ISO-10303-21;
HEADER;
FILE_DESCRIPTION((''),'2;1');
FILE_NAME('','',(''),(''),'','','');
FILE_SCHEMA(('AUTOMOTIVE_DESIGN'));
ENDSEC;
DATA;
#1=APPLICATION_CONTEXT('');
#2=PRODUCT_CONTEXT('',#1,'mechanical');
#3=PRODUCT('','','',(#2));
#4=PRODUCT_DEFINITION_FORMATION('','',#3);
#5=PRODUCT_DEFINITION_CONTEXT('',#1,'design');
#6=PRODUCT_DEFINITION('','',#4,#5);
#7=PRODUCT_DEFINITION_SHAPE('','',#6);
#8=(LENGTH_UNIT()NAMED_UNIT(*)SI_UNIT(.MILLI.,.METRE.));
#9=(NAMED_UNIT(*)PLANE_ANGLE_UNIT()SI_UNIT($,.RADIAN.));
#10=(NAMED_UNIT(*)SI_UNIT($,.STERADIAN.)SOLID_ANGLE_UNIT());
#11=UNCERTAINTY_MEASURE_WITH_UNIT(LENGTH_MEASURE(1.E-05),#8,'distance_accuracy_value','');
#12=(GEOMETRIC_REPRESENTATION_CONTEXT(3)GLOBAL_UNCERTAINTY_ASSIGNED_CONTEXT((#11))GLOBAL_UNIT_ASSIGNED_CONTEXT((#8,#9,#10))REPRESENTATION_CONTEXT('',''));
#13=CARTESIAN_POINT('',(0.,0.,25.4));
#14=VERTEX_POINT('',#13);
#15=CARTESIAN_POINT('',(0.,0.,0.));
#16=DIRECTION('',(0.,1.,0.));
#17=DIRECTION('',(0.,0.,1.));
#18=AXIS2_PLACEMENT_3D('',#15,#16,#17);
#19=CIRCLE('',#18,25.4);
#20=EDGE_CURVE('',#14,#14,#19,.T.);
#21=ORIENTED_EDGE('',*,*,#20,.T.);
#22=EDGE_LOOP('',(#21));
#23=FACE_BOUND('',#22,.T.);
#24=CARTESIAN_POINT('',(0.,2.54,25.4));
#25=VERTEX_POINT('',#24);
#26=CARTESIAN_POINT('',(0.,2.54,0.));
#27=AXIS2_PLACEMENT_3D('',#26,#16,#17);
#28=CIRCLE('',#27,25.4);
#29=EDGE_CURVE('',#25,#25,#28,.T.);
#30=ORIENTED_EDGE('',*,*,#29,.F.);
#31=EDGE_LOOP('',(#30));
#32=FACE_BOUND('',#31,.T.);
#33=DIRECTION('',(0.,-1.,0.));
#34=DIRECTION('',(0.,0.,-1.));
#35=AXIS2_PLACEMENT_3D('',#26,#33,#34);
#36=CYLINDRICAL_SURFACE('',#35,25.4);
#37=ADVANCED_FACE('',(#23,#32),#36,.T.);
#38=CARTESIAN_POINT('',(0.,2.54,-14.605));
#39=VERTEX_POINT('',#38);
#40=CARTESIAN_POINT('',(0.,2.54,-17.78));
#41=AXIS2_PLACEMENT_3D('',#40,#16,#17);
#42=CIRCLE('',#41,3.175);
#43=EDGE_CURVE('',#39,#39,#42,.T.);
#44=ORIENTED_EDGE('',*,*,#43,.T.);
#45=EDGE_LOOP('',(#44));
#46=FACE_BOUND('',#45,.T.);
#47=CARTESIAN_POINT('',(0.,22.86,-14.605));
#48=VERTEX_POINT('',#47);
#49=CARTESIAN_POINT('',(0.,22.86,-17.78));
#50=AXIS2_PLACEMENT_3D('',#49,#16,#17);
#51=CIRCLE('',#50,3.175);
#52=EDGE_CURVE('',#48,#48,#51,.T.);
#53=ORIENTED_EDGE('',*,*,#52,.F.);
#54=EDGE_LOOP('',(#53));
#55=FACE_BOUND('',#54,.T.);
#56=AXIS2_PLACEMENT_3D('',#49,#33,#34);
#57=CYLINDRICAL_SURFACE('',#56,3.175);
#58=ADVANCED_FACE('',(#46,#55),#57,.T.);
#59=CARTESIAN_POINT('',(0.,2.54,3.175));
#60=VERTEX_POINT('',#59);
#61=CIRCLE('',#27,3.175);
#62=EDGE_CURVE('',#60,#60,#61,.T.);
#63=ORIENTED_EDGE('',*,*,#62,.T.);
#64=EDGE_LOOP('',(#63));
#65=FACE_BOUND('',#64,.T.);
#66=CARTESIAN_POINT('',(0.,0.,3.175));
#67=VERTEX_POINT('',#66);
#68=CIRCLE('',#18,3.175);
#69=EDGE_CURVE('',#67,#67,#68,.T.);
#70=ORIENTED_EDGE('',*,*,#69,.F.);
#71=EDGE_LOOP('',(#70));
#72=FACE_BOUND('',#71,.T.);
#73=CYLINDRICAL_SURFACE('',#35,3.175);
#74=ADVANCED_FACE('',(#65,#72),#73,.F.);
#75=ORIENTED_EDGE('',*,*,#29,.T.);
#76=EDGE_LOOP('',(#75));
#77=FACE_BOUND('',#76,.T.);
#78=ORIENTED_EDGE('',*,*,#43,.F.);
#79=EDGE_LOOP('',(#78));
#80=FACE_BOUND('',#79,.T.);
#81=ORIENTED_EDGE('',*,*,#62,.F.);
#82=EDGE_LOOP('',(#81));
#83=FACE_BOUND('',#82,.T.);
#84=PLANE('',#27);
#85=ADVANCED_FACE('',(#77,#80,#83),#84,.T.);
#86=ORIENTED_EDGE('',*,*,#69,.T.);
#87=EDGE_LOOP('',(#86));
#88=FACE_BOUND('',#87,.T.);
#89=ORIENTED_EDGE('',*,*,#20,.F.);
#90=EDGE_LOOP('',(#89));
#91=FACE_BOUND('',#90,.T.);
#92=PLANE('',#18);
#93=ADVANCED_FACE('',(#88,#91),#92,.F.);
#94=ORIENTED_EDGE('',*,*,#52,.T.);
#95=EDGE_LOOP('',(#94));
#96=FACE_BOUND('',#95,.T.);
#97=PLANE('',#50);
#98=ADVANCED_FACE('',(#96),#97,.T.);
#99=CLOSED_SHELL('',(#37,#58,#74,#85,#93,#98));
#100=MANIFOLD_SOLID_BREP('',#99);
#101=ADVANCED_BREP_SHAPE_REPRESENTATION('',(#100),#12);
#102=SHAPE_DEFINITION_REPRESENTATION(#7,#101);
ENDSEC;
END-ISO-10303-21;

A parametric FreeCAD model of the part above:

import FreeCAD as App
import Part
import Sketcher

V = App.Vector
Q = App.Units.Quantity

doc = App.newDocument("Part")
params = doc.addObject("Spreadsheet::Sheet", "Params")
for row, (alias, value) in enumerate([
    ("sketch1_diameter", "2 in"),
    ("sketch1_diameter2", "0.25 in"),
    ("pad1_length", "0.1 in"),
    ("sketch2_diameter", "0.25 in"),
    ("pad2_length", "0.8 in"),
], start=1):
    params.set(f"A{row}", alias)
    params.set(f"B{row}", "=" + value)
    params.setAlias(f"B{row}", alias)

body = doc.addObject("PartDesign::Body", "Body")

sketch1 = body.newObject("Sketcher::SketchObject", "Sketch")
sketch1.AttachmentSupport = (doc.getObject("XZ_Plane"), [""])
sketch1.MapMode = "FlatFace"
sketch1.addGeometry([
    Part.Circle(V(0, 0, 0), V(0, 0, 1), 25.4),
    Part.Circle(V(0, 0, 0), V(0, 0, 1), 3.2),
], False)
sketch1.addConstraint([
    Sketcher.Constraint("Coincident", 0, 3, -1, 1),
    Sketcher.Constraint("Coincident", 1, 3, -1, 1),
    Sketcher.Constraint("Diameter", 0, Q("2 in")),
    Sketcher.Constraint("Diameter", 1, Q("0.25 in")),
])
sketch1.setExpression("Constraints[2]", "Params.sketch1_diameter")
sketch1.setExpression("Constraints[3]", "Params.sketch1_diameter2")
pad1 = body.newObject("PartDesign::Pad", "Pad")
pad1.Profile = sketch1
pad1.setExpression("Length", "Params.pad1_length")
pad1.Reversed = True

sketch2 = body.newObject("Sketcher::SketchObject", "Sketch001")
sketch2.AttachmentSupport = (doc.getObject("XZ_Plane"), [""])
sketch2.MapMode = "FlatFace"
sketch2.AttachmentOffset = App.Placement(V(0, 0, -0.1 * 25.4), App.Rotation())
sketch2.addGeometry(Part.Circle(V(0, -17.8, 0), V(0, 0, 1), 3.2), False)
sketch2.addConstraint([
    Sketcher.Constraint("PointOnObject", 0, 3, -2),
    Sketcher.Constraint("Diameter", 0, Q("0.25 in")),
    Sketcher.Constraint("DistanceY", 0, 3, -1, 1, Q("0.7 in")),
])
sketch2.setExpression("Constraints[1]", "Params.sketch2_diameter")
pad2 = body.newObject("PartDesign::Pad", "Pad001")
pad2.Profile = sketch2
pad2.setExpression("Length", "Params.pad2_length")
pad2.Reversed = True

doc.recompute()
